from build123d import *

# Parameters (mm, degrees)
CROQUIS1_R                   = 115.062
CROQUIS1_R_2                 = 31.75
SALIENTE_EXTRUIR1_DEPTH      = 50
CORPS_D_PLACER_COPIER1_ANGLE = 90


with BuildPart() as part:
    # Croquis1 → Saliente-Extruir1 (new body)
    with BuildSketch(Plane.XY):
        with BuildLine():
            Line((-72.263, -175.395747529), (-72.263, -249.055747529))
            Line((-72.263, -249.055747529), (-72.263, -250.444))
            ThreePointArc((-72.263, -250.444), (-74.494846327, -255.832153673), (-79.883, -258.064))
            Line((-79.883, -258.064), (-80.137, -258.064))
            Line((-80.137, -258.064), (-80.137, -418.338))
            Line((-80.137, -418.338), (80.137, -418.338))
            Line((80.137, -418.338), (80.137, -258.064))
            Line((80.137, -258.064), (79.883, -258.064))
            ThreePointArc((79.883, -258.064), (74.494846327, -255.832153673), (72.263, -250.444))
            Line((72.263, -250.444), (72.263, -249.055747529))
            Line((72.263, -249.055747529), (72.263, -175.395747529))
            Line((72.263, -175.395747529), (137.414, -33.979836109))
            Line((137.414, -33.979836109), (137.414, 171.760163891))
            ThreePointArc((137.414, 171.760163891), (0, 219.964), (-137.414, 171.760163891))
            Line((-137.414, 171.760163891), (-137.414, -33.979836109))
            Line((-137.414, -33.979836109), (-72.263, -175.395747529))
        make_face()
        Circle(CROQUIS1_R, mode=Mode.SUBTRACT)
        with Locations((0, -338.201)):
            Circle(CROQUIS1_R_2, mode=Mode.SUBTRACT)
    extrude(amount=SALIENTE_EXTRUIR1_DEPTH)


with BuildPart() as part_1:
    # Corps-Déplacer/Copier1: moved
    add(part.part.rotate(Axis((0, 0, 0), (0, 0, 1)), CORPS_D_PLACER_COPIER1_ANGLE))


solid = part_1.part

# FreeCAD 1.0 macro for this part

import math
import FreeCAD as App
import Part
import Sketcher
from FreeCAD import Vector
Q = App.Units.Quantity

doc = App.newDocument("Part")
params = doc.addObject("Spreadsheet::Sheet", "Params")
for row, (alias, value) in enumerate([
    ("sketch1_diameter", "2.5 in"),
    ("sketch1_radius", "0.3 in"),
    ("sketch1_diameter2", "9.06 in"),
    ("sketch1_radius2", "8.66 in"),
    ("sketch1_height", "8.1 in"),
    ("pad1_length", "50 mm"),
], start=1):
    params.set(f"A{row}", alias)
    params.set(f"B{row}", "=" + value)
    params.setAlias(f"B{row}", alias)

body = doc.addObject("PartDesign::Body", "Body")

# Sketch on XY plane
sketch1 = body.newObject("Sketcher::SketchObject", "Sketch")
sketch1.AttachmentSupport = (doc.getObject("XY_Plane"), [""])
sketch1.MapMode = "FlatFace"
sketch1.addGeometry([
    Part.LineSegment(Vector(-72.263, -175.395748, 0), Vector(-72.263, -250.444, 0)),  # 0
    Part.ArcOfCircle(Part.Circle(Vector(-79.883, -250.444, 0), Vector(0, 0, 1), 7.62), math.radians(-90), math.radians(0)),  # 1
    Part.LineSegment(Vector(-79.883, -258.064, 0), Vector(-80.137, -258.064, 0)),  # 2
    Part.LineSegment(Vector(-80.137, -258.064, 0), Vector(-80.137, -418.338, 0)),  # 3
    Part.LineSegment(Vector(-80.137, -418.338, 0), Vector(80.137, -418.338, 0)),  # 4
    Part.LineSegment(Vector(80.137, -418.338, 0), Vector(80.137, -258.064, 0)),  # 5
    Part.LineSegment(Vector(80.137, -258.064, 0), Vector(79.883, -258.064, 0)),  # 6
    Part.ArcOfCircle(Part.Circle(Vector(79.883, -250.444, 0), Vector(0, 0, 1), 7.62), math.radians(180), math.radians(270)),  # 7
    Part.LineSegment(Vector(72.263, -250.444, 0), Vector(72.263, -175.395748, 0)),  # 8
    Part.LineSegment(Vector(72.263, -175.395748, 0), Vector(137.414, -33.979836, 0)),  # 9
    Part.LineSegment(Vector(137.414, -33.979836, 0), Vector(137.414, 171.760164, 0)),  # 10
    Part.ArcOfCircle(Part.Circle(Vector(0, 0, 0), Vector(0, 0, 1), 219.964), math.radians(51.338998), math.radians(128.661002)),  # 11
    Part.LineSegment(Vector(-137.414, 171.760164, 0), Vector(-137.414, -33.979836, 0)),  # 12
    Part.LineSegment(Vector(-137.414, -33.979836, 0), Vector(-72.263, -175.395748, 0)),  # 13
    Part.Circle(Vector(0, -338.201, 0), Vector(0, 0, 1), 31.75),  # 14
    Part.Circle(Vector(0, 0, 0), Vector(0, 0, 1), 115.062),  # 15
], False)
sketch1.addConstraint([
    Sketcher.Constraint("Tangent", 0, 2, 1, 2),
    Sketcher.Constraint("Tangent", 1, 1, 2, 1),
    Sketcher.Constraint("Coincident", 2, 2, 3, 1),
    Sketcher.Constraint("Coincident", 3, 2, 4, 1),
    Sketcher.Constraint("Coincident", 4, 2, 5, 1),
    Sketcher.Constraint("Coincident", 5, 2, 6, 1),
    Sketcher.Constraint("Tangent", 6, 2, 7, 2),
    Sketcher.Constraint("Tangent", 7, 1, 8, 1),
    Sketcher.Constraint("Coincident", 8, 2, 9, 1),
    Sketcher.Constraint("Coincident", 9, 2, 10, 1),
    Sketcher.Constraint("Coincident", 10, 2, 11, 1),
    Sketcher.Constraint("Coincident", 11, 2, 12, 1),
    Sketcher.Constraint("Coincident", 12, 2, 13, 1),
    Sketcher.Constraint("Coincident", 13, 2, 0, 1),
    Sketcher.Constraint("Vertical", 0),
    Sketcher.Constraint("Horizontal", 2),
    Sketcher.Constraint("Vertical", 3),
    Sketcher.Constraint("Horizontal", 4),
    Sketcher.Constraint("Vertical", 5),
    Sketcher.Constraint("Horizontal", 6),
    Sketcher.Constraint("Vertical", 8),
    Sketcher.Constraint("Vertical", 10),
    Sketcher.Constraint("Vertical", 12),
    Sketcher.Constraint("Coincident", 11, 3, -1, 1),
    Sketcher.Constraint("Coincident", 15, 3, -1, 1),
    Sketcher.Constraint("Equal", 1, 7),
    Sketcher.Constraint("Symmetric", 1, 3, 7, 3, -2),
    Sketcher.Constraint("Symmetric", 9, 2, 12, 2, -2),
    Sketcher.Constraint("PointOnObject", 14, 3, -2),
    Sketcher.Constraint("Horizontal", 8, 2, 13, 2),
    Sketcher.Constraint("Equal", 2, 6),
    Sketcher.Constraint("Equal", 4, 3),
    Sketcher.Constraint("Diameter", 14, Q("2.5 in")),
    Sketcher.Constraint("Radius", 1, Q("0.3 in")),
    Sketcher.Constraint("Diameter", 15, Q("9.06 in")),
    Sketcher.Constraint("Radius", 11, Q("8.66 in")),
    Sketcher.Constraint("DistanceY", 10, 1, 10, 2, Q("8.1 in")),
    Sketcher.Constraint("DistanceX", 0, 2, 5, 2, Q("6 in")),
    Sketcher.Constraint("DistanceX", 2, 2, 2, 1, Q("0.01 in")),
    Sketcher.Constraint("Distance", 9, Q("6.13 in")),
    Sketcher.Constraint("DistanceY", 1, 3, -1, 1, Q("9.86 in")),
    Sketcher.Constraint("DistanceX", -1, 1, 9, 2, Q("5.41 in")),
    Sketcher.Constraint("DistanceY", 14, 3, -1, 1, Q("13.315 in")),
])
sketch1.setExpression("Constraints[32]", "Params.sketch1_diameter")
sketch1.setExpression("Constraints[33]", "Params.sketch1_radius")
sketch1.setExpression("Constraints[34]", "Params.sketch1_diameter2")
sketch1.setExpression("Constraints[35]", "Params.sketch1_radius2")
sketch1.setExpression("Constraints[36]", "Params.sketch1_height")
pad1 = body.newObject("PartDesign::Pad", "Pad")
pad1.Profile = sketch1
pad1.setExpression("Length", "Params.pad1_length")
body2 = doc.addObject("PartDesign::Body", "Body001")
doc.recompute()

body.Placement = App.Placement(Vector(0, 0, 0), App.Rotation(Vector(0, 0, 1), 90))
boolean = body2.newObject("PartDesign::Boolean", "Boolean")
boolean.Type = "Fuse"
boolean.addObjects([body])

doc.recompute()
